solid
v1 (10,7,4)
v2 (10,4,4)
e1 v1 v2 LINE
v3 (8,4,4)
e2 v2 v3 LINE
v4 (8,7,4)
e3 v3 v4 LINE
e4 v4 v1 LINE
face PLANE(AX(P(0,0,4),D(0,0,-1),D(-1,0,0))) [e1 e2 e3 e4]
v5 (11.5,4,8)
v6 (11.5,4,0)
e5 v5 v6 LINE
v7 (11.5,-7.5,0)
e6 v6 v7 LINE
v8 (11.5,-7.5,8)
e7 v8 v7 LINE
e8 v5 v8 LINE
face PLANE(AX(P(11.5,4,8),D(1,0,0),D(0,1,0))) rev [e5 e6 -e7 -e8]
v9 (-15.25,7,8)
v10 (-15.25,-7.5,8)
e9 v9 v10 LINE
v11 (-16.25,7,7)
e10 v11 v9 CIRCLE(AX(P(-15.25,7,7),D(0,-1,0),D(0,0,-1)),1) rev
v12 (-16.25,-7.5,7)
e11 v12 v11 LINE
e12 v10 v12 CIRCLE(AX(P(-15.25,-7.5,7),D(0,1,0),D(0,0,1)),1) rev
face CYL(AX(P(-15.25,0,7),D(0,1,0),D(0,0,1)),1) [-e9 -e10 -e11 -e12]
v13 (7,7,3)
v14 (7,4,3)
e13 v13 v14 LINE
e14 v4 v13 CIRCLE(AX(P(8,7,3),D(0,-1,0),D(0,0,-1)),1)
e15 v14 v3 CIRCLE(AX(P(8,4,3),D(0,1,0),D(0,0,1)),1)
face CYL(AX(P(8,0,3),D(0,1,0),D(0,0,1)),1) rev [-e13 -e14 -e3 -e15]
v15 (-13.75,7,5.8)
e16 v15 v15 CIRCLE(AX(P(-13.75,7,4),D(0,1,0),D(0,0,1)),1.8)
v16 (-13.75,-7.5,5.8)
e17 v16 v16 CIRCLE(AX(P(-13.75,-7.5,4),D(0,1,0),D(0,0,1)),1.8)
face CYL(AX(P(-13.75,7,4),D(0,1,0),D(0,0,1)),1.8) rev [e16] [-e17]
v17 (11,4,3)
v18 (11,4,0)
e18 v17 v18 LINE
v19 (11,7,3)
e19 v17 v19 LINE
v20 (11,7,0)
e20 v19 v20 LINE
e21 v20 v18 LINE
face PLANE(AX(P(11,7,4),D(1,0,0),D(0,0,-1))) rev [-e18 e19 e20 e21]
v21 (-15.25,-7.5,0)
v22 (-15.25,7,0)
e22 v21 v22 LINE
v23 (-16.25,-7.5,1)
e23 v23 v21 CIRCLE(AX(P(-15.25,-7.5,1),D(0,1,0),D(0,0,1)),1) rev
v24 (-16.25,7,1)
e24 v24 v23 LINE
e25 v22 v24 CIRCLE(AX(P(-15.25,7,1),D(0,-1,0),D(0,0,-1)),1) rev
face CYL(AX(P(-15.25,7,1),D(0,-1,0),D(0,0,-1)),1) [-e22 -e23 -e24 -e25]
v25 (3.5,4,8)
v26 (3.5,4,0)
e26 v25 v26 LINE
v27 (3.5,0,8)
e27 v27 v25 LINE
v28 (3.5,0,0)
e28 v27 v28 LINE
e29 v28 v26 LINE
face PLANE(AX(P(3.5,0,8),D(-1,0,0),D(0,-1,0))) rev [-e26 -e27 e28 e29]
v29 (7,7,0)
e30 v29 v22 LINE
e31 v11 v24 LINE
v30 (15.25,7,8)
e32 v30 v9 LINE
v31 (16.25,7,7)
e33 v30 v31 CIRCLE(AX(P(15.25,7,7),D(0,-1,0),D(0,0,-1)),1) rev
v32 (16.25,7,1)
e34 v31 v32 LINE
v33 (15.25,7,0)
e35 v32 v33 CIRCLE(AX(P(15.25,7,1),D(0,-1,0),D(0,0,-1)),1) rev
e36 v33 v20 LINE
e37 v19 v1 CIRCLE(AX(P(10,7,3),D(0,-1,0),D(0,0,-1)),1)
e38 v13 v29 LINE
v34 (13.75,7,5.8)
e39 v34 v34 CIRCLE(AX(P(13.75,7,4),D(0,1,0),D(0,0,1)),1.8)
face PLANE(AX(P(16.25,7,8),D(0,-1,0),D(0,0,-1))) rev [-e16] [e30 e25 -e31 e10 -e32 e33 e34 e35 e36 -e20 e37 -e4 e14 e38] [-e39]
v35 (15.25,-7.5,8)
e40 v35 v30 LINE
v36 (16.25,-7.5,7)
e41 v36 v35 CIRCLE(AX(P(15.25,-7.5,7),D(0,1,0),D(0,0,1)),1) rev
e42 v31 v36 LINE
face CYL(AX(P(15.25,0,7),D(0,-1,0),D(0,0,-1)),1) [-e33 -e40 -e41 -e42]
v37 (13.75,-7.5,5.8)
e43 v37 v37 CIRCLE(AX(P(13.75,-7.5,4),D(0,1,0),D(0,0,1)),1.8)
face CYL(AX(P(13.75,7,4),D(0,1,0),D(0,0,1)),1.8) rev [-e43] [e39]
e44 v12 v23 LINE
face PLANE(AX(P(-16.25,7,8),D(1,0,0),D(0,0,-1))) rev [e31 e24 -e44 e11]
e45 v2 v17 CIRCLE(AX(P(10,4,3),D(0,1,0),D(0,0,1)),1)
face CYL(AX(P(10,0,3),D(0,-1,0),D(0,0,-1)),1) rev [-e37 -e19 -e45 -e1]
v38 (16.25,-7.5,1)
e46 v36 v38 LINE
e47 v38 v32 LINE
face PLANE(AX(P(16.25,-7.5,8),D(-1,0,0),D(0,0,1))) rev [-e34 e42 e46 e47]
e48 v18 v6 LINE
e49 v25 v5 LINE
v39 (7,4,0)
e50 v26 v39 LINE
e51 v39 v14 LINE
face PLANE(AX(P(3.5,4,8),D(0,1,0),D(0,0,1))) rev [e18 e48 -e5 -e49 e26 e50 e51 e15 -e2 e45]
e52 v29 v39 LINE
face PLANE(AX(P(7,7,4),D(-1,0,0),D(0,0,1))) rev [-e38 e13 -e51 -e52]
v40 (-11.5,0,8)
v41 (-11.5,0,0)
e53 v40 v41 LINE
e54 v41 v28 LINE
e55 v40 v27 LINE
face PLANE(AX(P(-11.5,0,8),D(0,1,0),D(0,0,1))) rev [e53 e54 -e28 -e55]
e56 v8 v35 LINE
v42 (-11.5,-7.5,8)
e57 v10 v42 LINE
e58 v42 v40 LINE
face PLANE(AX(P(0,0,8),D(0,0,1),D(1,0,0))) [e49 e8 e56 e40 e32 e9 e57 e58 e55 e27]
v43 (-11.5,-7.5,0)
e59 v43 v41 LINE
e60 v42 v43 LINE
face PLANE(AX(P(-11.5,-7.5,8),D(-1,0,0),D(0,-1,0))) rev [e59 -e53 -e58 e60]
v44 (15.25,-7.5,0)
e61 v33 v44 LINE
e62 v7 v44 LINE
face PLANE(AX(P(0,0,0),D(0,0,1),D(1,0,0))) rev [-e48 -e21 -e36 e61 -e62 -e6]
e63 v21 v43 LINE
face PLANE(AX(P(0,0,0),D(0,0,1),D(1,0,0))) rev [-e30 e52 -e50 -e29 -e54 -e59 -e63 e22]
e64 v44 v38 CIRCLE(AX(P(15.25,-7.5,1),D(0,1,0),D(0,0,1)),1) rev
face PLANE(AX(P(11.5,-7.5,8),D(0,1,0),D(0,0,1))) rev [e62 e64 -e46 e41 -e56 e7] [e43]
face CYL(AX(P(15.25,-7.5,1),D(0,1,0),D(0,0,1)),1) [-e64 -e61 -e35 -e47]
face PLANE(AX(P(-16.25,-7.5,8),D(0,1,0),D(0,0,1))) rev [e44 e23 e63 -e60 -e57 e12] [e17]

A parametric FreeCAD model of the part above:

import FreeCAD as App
import Part
import Sketcher
from FreeCAD import Vector


def edges_at(feature, points):
    """Names of the edges that pass closest to the given points."""
    edges = feature.Shape.Edges
    near = lambda p: min(range(len(edges)), key=lambda i: edges[i].distToShape(Part.Vertex(*p))[0])
    return sorted({f"Edge{near(p) + 1}" for p in points})


def add_polygon(sketch, points):
    """Adds a closed chain of lines whose ends are joined by coincident constraints."""
    first, n = sketch.GeometryCount, len(points)
    for a, b in zip(points, points[1:] + points[:1]):
        sketch.addGeometry(Part.LineSegment(App.Vector(*a, 0), App.Vector(*b, 0)), False)
    for i in range(n):
        sketch.addConstraint(Sketcher.Constraint("Coincident", first + i, 2, first + (i + 1) % n, 1))

doc = App.newDocument("Part")
params = doc.addObject("Spreadsheet::Sheet", "Params")
for row, (alias, value) in enumerate([
    ("sketch1_width", "15 mm"),
    ("sketch1_width2", "8 mm"),
    ("sketch1_height", "4 mm"),
    ("sketch1_width3", "32.5 mm"),
    ("sketch1_height2", "7.5 mm"),
    ("pad1_length", "8 mm"),
    ("sketch2_diameter", "3.6 mm"),
    ("hole_diameter", "3.6 mm"),
    ("fillet_radius", "1 mm"),
    ("sketch3_width", "4 mm"),
    ("sketch3_height", "7 mm"),
    ("pocket1_length", "4 mm"),
    ("fillet2_radius", "1 mm"),
], start=1):
    params.set(f"A{row}", alias)
    params.set(f"B{row}", "=" + value)
    params.setAlias(f"B{row}", alias)

body = doc.addObject("PartDesign::Body", "Body")

# Sketch on XY plane
sketch1 = body.newObject("Sketcher::SketchObject", "Sketch")
sketch1.AttachmentSupport = (doc.getObject("XY_Plane"), [""])
sketch1.MapMode = "FlatFace"
add_polygon(sketch1, [(-16.2, -7.5), (-11.5, -7.5), (-11.5, 0), (3.5, 0), (3.5, 4), (11.5, 4), (11.5, -7.5), (16.2, -7.5), (16.2, 7), (-16.2, 7)])  # lines 0-9
sketch1.addConstraint(Sketcher.Constraint("Horizontal", 0))
sketch1.addConstraint(Sketcher.Constraint("Vertical", 1))
sketch1.addConstraint(Sketcher.Constraint("Horizontal", 2))
sketch1.addConstraint(Sketcher.Constraint("Vertical", 3))
sketch1.addConstraint(Sketcher.Constraint("Horizontal", 4))
sketch1.addConstraint(Sketcher.Constraint("Vertical", 5))
sketch1.addConstraint(Sketcher.Constraint("Horizontal", 6))
sketch1.addConstraint(Sketcher.Constraint("Vertical", 7))
sketch1.addConstraint(Sketcher.Constraint("Horizontal", 8))
sketch1.addConstraint(Sketcher.Constraint("Vertical", 9))
sketch1.addConstraint(Sketcher.Constraint("Symmetric", 0, 2, 5, 2, -2))
sketch1.addConstraint(Sketcher.Constraint("PointOnObject", 1, 2, -1))
sketch1.addConstraint(Sketcher.Constraint("Equal", 0, 6))
sketch1.addConstraint(Sketcher.Constraint("DistanceX", 2, 1, 2, 2, 15.0))
sketch1.addConstraint(Sketcher.Constraint("DistanceX", 4, 1, 4, 2, 8.0))
sketch1.addConstraint(Sketcher.Constraint("DistanceY", 3, 1, 3, 2, 4.0))
sketch1.addConstraint(Sketcher.Constraint("DistanceX", 8, 2, 8, 1, 32.5))
sketch1.addConstraint(Sketcher.Constraint("DistanceY", 1, 1, 1, 2, 7.5))
sketch1.addConstraint(Sketcher.Constraint("DistanceY", 7, 1, 7, 2, 14.5))
sketch1.setExpression("Constraints[23]", "Params.sketch1_width")
sketch1.setExpression("Constraints[24]", "Params.sketch1_width2")
sketch1.setExpression("Constraints[25]", "Params.sketch1_height")
sketch1.setExpression("Constraints[26]", "Params.sketch1_width3")
sketch1.setExpression("Constraints[27]", "Params.sketch1_height2")
pad1 = body.newObject("PartDesign::Pad", "Pad")
pad1.Profile = sketch1
pad1.setExpression("Length", "Params.pad1_length")

# Sketch on XZ plane
sketch2 = body.newObject("Sketcher::SketchObject", "Sketch001")
sketch2.AttachmentSupport = (doc.getObject("XZ_Plane"), [""])
sketch2.MapMode = "FlatFace"
sketch2.AttachmentOffset = App.Placement(Vector(0, 0, -7), App.Rotation())
sketch2.addGeometry(Part.Circle(Vector(13.8, 4, 0), Vector(0, 0, 1), 1.8), False)
sketch2.addGeometry(Part.Circle(Vector(-13.8, 4, 0), Vector(0, 0, 1), 1.8), False)
sketch2.addConstraint(Sketcher.Constraint("Equal", 0, 1))
sketch2.addConstraint(Sketcher.Constraint("Symmetric", 0, 3, 1, 3, -2))
sketch2.addConstraint(Sketcher.Constraint("Diameter", 0, 3.6))
sketch2.addConstraint(Sketcher.Constraint("DistanceY", -1, 1, 0, 3, 4.0))
sketch2.addConstraint(Sketcher.Constraint("DistanceX", 1, 3, 0, 3, 27.5))
sketch2.setExpression("Constraints[2]", "Params.sketch2_diameter")
doc.recompute()
hole = body.newObject("PartDesign::Hole", "Hole")
hole.Profile = sketch2
hole.ThreadType = "None"
hole.setExpression("Diameter", "Params.hole_diameter")
hole.DepthType = "ThroughAll"
hole.Reversed = True
doc.recompute()

fillet = body.newObject("PartDesign::Fillet", "Fillet")
fillet.Base = (hole, edges_at(hole, [
    (-16.25, -0.25, 8),
    (-16.25, -0.25, 0),
    (16.25, -0.25, 0),
    (16.25, -0.25, 8),
]))
fillet.setExpression("Radius", "Params.fillet_radius")

# Sketch on XY plane
sketch3 = body.newObject("Sketcher::SketchObject", "Sketch002")
sketch3.AttachmentSupport = (doc.getObject("XY_Plane"), [""])
sketch3.MapMode = "FlatFace"
add_polygon(sketch3, [(11, 7), (11, 0), (7, 0), (7, 7)])  # lines 0-3
sketch3.addConstraint(Sketcher.Constraint("Vertical", 0))
sketch3.addConstraint(Sketcher.Constraint("Horizontal", 1))
sketch3.addConstraint(Sketcher.Constraint("Vertical", 2))
sketch3.addConstraint(Sketcher.Constraint("Horizontal", 3))
sketch3.addConstraint(Sketcher.Constraint("PointOnObject", 0, 2, -1))
sketch3.addConstraint(Sketcher.Constraint("DistanceX", 1, 2, 1, 1, 4.0))
sketch3.addConstraint(Sketcher.Constraint("DistanceY", 0, 2, 0, 1, 7.0))
sketch3.addConstraint(Sketcher.Constraint("DistanceX", -1, 1, 0, 2, 11.0))
sketch3.setExpression("Constraints[9]", "Params.sketch3_width")
sketch3.setExpression("Constraints[10]", "Params.sketch3_height")
pocket1 = body.newObject("PartDesign::Pocket", "Pocket")
pocket1.Profile = sketch3
pocket1.setExpression("Length", "Params.pocket1_length")
pocket1.Reversed = True
doc.recompute()

fillet2 = body.newObject("PartDesign::Fillet", "Fillet001")
fillet2.Base = (pocket1, edges_at(pocket1, [(11, 5.5, 4), (7, 5.5, 4)]))
fillet2.setExpression("Radius", "Params.fillet2_radius")

doc.recompute()
